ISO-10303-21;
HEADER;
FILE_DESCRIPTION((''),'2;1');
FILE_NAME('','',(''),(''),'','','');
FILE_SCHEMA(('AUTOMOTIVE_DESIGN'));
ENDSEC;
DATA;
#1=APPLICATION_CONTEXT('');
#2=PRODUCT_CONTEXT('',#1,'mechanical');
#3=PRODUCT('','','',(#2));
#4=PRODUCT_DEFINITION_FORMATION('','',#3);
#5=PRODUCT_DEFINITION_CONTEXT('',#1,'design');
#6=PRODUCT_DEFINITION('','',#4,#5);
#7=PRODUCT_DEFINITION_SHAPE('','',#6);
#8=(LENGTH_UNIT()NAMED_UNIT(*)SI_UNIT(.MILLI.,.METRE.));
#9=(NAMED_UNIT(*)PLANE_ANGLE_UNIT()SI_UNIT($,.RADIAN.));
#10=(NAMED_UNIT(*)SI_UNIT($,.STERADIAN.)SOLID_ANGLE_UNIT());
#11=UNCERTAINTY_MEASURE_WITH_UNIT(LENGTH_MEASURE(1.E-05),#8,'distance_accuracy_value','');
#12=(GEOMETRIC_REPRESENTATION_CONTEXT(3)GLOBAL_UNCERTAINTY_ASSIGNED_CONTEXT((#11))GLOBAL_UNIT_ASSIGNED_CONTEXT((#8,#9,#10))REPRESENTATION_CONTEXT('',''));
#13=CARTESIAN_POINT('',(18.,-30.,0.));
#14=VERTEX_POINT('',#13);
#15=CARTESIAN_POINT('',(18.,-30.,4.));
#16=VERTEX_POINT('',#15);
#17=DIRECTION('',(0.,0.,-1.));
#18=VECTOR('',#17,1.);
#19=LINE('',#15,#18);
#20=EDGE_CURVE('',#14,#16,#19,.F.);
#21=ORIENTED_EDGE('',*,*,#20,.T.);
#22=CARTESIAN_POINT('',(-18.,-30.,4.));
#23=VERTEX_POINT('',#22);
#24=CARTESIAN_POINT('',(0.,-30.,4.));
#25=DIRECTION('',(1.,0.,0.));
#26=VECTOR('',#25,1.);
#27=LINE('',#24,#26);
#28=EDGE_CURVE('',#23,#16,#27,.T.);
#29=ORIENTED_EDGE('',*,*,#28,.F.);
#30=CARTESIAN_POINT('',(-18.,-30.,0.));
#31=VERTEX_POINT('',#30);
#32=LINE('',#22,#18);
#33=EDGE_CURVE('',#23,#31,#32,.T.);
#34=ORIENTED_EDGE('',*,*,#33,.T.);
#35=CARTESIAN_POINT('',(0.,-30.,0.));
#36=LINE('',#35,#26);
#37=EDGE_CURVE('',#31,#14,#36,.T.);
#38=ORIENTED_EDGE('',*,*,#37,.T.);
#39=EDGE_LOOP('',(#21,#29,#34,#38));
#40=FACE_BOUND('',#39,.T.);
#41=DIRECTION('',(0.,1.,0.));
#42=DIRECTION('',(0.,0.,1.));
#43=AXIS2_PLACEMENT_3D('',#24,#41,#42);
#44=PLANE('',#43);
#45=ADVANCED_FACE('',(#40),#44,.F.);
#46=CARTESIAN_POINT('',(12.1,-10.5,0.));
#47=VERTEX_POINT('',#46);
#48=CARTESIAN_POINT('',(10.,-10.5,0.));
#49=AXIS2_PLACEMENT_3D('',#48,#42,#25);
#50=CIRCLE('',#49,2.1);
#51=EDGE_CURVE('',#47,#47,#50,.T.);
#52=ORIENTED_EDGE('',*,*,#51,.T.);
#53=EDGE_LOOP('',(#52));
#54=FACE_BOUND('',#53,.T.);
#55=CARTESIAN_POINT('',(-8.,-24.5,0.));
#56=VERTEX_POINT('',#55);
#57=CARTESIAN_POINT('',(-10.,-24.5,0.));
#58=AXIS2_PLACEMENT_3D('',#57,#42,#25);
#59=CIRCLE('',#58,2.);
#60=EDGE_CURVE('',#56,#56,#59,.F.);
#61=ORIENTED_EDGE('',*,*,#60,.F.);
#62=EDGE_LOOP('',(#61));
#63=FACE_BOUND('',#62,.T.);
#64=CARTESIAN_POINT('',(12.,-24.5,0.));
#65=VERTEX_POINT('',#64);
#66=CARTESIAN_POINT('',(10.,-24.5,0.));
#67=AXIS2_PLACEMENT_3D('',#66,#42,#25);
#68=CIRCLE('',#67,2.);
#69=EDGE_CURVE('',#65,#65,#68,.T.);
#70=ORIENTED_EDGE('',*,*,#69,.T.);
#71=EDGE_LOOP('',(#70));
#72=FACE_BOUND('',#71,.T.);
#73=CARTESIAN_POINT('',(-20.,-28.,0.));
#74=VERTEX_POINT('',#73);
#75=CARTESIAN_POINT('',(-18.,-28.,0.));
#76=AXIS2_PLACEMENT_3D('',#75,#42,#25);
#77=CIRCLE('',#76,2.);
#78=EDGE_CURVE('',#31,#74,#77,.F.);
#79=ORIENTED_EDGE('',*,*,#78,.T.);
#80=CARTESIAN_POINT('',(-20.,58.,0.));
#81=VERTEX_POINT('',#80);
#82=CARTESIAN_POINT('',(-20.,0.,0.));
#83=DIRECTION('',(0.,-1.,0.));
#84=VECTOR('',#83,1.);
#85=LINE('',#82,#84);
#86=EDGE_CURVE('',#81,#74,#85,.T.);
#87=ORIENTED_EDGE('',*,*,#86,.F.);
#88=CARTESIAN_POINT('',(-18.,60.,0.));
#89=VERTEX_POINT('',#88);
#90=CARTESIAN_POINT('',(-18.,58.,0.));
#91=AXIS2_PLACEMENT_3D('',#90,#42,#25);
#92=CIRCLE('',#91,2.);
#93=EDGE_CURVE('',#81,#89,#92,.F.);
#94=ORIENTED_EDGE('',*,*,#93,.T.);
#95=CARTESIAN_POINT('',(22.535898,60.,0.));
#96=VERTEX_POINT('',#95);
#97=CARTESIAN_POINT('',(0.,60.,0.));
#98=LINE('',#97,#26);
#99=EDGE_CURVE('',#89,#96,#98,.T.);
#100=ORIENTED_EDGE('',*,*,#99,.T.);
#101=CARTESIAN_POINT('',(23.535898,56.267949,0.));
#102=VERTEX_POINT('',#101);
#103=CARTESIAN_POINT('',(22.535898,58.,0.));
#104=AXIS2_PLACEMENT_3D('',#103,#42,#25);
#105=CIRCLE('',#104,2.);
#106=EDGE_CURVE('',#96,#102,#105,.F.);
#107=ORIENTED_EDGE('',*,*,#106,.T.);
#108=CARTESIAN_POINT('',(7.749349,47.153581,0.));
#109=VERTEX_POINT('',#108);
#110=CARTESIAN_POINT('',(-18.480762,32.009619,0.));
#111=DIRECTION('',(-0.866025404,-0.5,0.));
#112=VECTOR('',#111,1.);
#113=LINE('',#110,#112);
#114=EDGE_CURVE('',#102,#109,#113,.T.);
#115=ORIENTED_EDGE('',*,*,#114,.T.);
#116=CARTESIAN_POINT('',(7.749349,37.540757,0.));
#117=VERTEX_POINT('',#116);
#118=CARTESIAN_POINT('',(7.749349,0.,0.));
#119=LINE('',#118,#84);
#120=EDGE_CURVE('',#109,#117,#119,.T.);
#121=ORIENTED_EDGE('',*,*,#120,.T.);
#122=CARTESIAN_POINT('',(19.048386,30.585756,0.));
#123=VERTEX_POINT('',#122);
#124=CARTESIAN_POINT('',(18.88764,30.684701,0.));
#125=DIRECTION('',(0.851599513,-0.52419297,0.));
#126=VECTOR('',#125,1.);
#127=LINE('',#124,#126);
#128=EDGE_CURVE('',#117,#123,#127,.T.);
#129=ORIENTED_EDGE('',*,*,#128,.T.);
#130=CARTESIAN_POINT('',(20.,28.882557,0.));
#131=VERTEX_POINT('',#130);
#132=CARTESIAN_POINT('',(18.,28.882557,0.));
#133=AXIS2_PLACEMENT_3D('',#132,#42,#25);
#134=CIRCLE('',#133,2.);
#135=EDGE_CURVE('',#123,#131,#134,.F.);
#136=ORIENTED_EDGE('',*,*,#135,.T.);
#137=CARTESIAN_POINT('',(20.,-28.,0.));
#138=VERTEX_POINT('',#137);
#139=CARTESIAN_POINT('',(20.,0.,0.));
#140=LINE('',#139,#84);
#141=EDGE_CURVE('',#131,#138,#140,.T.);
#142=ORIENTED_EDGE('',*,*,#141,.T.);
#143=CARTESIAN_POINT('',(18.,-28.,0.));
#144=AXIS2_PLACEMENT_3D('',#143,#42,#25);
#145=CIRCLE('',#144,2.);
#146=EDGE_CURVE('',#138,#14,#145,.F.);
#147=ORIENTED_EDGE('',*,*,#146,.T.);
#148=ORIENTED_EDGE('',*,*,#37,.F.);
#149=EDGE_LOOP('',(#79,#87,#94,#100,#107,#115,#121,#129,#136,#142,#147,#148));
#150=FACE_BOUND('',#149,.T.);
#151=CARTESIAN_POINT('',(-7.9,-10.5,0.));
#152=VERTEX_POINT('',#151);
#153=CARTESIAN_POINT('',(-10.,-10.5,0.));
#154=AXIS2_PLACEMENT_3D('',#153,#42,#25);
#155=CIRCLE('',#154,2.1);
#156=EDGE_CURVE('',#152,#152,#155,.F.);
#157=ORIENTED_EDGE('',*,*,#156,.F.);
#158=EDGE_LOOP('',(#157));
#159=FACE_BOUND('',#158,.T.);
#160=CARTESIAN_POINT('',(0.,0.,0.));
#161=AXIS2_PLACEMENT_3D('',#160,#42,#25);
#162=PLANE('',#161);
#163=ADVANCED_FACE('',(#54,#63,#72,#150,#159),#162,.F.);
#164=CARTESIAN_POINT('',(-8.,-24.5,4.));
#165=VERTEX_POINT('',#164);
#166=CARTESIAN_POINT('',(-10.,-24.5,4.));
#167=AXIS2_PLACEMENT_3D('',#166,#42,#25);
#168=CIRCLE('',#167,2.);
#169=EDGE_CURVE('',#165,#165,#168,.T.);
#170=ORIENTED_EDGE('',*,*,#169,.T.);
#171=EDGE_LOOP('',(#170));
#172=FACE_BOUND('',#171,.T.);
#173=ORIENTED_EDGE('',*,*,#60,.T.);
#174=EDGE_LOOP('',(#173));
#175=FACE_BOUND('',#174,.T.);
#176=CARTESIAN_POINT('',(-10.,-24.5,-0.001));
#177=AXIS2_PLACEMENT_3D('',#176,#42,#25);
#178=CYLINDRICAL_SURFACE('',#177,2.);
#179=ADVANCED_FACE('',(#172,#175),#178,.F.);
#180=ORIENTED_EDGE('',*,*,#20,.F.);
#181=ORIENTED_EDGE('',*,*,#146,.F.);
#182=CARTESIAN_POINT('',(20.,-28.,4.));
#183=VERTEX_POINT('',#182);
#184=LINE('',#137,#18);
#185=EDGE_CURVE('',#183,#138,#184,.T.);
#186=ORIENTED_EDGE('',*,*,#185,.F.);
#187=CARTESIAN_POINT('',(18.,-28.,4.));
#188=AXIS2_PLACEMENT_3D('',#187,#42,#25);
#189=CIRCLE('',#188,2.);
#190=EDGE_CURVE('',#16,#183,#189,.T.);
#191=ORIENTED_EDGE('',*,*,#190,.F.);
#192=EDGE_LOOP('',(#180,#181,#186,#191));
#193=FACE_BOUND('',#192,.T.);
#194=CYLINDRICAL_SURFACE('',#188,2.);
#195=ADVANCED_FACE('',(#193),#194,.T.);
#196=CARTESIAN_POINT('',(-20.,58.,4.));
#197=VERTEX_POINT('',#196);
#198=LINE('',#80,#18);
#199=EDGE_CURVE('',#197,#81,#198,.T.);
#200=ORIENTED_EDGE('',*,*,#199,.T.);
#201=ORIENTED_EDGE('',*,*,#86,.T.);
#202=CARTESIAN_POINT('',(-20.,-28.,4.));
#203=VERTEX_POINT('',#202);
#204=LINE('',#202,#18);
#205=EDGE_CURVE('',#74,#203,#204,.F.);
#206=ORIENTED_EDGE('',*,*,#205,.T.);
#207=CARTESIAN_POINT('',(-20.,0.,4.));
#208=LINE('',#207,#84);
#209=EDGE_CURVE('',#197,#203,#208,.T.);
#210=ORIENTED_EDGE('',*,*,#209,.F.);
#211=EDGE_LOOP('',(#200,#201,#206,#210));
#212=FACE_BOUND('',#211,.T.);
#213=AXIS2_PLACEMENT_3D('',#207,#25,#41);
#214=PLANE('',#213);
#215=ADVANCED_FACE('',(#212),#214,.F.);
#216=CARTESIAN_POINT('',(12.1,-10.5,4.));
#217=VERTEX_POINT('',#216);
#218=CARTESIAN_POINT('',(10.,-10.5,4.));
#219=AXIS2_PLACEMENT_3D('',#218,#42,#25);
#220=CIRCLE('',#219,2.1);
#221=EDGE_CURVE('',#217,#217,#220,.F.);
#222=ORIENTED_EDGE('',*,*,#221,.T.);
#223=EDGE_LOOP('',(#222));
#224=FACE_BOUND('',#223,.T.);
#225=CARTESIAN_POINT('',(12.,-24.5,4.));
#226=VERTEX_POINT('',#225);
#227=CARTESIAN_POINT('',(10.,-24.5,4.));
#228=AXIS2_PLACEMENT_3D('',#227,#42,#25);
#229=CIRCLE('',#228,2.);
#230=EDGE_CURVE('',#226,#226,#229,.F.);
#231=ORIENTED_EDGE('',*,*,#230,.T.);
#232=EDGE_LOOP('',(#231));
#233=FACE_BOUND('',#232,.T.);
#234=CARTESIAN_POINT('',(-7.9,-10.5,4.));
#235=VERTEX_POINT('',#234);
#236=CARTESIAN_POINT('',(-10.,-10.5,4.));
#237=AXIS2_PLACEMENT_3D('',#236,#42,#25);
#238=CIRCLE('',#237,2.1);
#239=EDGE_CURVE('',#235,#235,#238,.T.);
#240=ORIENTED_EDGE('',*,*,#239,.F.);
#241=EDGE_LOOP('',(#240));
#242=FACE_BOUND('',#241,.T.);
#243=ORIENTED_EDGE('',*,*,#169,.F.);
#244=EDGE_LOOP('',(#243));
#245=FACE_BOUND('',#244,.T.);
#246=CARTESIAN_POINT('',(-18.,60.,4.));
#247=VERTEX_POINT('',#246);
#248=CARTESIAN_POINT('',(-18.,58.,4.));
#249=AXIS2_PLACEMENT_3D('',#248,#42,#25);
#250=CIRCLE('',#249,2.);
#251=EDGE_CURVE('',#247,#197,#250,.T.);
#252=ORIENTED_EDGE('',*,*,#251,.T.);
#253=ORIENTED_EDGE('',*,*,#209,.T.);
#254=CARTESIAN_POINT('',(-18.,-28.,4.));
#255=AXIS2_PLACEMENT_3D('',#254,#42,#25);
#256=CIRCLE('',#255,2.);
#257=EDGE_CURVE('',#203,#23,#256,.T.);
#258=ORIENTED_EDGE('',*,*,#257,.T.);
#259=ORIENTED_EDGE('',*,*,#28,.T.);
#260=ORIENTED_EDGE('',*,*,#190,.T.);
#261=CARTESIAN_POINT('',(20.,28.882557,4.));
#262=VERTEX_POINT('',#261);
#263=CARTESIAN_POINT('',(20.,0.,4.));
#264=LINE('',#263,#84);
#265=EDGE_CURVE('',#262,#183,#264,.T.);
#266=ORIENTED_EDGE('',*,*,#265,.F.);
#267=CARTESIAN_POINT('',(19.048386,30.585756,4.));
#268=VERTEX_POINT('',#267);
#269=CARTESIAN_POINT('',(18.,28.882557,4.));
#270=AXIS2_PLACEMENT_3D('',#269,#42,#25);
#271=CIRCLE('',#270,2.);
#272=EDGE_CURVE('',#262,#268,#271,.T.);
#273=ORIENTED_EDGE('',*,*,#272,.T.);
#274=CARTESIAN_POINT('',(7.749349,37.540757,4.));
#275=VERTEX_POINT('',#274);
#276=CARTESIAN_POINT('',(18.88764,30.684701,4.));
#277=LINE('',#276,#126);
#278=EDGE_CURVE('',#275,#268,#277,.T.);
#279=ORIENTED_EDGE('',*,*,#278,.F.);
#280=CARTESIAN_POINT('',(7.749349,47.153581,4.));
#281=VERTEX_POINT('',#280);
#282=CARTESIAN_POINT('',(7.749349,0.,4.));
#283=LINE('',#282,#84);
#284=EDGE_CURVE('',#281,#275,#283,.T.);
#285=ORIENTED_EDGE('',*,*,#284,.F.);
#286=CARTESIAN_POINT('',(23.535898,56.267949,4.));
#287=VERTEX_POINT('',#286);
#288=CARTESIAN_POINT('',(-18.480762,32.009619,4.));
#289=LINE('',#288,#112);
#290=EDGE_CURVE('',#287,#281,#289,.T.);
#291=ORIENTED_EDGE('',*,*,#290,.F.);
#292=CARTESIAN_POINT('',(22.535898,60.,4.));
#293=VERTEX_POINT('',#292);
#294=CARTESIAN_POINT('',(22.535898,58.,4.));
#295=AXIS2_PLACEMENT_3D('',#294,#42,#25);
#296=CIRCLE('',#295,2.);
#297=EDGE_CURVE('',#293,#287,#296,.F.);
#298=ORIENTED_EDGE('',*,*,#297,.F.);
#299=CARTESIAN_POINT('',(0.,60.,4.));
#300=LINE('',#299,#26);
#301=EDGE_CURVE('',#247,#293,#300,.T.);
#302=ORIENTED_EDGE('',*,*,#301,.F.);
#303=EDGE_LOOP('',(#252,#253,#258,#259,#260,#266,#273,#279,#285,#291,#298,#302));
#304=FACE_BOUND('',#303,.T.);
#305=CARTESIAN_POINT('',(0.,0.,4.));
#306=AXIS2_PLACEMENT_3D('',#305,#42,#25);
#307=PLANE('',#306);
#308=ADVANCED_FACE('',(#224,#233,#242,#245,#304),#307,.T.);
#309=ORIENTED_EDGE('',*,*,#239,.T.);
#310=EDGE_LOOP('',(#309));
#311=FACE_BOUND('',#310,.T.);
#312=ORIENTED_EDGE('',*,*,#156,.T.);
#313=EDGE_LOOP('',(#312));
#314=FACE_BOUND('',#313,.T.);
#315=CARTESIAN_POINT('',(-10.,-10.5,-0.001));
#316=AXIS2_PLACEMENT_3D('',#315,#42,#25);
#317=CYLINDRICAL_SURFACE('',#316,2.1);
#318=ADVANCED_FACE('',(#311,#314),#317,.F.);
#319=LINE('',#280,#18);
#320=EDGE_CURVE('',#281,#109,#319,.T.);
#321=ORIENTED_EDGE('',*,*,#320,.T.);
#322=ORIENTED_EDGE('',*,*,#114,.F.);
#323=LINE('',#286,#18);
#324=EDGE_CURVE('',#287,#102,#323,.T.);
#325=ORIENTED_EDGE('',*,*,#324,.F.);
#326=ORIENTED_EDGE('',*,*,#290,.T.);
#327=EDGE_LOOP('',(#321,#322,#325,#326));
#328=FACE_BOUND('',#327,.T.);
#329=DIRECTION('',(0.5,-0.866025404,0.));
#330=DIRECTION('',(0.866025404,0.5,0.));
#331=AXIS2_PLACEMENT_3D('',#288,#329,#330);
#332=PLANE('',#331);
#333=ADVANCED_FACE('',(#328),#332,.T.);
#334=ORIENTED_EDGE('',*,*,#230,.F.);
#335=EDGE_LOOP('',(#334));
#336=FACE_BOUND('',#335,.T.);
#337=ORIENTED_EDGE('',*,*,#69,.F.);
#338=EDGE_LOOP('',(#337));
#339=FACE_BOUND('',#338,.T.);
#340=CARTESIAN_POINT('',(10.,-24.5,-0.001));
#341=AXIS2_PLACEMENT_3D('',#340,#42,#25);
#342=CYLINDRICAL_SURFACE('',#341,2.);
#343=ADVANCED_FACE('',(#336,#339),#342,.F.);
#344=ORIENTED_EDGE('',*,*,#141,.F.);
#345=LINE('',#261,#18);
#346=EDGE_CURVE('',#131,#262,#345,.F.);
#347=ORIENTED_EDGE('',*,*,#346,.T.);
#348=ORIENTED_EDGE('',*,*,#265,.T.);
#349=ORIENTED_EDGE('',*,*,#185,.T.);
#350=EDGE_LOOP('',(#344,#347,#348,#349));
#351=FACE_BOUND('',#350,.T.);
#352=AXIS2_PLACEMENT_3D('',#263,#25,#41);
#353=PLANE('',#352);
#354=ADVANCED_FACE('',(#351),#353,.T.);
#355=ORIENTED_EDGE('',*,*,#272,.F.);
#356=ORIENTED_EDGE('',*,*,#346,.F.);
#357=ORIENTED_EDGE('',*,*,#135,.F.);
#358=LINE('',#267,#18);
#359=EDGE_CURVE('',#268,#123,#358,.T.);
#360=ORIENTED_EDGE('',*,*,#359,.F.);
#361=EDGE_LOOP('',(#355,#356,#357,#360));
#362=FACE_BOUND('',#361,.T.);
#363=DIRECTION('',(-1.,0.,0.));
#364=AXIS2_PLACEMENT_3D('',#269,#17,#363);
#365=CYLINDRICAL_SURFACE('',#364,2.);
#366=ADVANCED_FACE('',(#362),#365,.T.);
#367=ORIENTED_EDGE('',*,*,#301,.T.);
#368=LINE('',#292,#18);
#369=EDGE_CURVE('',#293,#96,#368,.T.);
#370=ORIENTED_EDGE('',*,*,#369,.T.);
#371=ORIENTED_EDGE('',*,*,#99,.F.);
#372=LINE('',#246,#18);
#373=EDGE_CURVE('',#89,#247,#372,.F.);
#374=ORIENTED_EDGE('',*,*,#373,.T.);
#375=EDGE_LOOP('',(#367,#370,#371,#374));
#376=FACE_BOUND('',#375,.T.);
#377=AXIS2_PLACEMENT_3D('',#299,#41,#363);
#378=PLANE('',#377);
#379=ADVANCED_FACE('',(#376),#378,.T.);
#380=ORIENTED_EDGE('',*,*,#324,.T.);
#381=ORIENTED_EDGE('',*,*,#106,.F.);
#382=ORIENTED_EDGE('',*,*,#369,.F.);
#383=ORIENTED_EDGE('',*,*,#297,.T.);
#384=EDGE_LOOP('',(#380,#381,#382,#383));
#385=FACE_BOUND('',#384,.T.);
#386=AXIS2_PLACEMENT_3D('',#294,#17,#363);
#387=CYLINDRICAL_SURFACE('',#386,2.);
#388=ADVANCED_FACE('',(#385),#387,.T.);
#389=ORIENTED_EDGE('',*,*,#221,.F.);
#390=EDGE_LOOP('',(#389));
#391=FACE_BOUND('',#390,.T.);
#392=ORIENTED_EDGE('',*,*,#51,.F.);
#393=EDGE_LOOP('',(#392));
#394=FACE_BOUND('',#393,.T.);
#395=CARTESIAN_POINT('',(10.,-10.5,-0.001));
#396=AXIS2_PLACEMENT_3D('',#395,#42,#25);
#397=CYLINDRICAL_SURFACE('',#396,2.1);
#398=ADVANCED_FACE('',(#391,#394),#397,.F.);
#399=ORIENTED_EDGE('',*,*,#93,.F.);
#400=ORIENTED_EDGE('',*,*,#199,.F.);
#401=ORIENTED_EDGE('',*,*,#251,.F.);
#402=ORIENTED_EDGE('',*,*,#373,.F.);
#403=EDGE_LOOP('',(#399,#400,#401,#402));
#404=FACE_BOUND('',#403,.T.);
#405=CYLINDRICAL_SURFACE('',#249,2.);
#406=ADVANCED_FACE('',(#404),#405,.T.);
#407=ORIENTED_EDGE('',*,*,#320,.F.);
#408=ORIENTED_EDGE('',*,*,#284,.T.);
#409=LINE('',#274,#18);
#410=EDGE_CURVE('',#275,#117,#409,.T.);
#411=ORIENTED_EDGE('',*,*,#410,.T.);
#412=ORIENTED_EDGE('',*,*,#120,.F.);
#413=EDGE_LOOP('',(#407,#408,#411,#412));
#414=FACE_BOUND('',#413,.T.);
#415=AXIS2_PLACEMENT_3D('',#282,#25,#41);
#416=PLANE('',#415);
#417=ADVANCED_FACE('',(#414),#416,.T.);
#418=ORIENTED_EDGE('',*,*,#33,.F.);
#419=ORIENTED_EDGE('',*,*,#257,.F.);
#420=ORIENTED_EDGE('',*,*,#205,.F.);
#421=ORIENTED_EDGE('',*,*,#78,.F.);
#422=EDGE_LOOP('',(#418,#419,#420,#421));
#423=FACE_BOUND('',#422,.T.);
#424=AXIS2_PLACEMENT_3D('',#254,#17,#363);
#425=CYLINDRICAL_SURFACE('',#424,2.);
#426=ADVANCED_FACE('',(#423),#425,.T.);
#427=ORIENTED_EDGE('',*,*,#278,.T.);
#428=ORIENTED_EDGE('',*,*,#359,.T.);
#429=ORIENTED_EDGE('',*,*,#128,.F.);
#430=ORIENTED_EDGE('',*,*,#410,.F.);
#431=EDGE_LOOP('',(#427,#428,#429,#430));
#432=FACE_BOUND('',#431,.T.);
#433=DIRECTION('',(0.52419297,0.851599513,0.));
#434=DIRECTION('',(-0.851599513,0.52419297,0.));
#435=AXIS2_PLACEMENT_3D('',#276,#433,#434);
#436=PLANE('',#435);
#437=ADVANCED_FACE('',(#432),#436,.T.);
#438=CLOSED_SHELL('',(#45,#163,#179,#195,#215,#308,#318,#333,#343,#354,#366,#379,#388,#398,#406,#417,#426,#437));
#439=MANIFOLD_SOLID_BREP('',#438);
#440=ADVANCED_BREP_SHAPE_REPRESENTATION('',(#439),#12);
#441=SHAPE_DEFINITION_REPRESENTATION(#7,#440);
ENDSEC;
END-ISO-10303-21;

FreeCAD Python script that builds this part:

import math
import FreeCAD as App
import Part
import Sketcher
from FreeCAD import Vector
Q = App.Units.Quantity


def edges_at(feature, points):
    """Names of the edges that pass closest to the given points."""
    edges = feature.Shape.Edges
    near = lambda p: min(range(len(edges)), key=lambda i: edges[i].distToShape(Part.Vertex(*p))[0])
    return sorted({f"Edge{near(p) + 1}" for p in points})

doc = App.newDocument("Part")
body = doc.addObject("PartDesign::Body", "Body")

sketch1 = body.newObject("Sketcher::SketchObject", "Sketch")
sketch1.AttachmentSupport = (doc.getObject("XY_Plane"), [""])
sketch1.MapMode = "FlatFace"
sketch1.addGeometry(Part.LineSegment(Vector(22.5, 60, 0), Vector(-20, 60, 0)), False)
sketch1.addGeometry(Part.LineSegment(Vector(-20, 60, 0), Vector(-20, -30, 0)), False)
sketch1.addGeometry(Part.LineSegment(Vector(-20, -30, 0), Vector(20, -30, 0)), False)
sketch1.addGeometry(Part.LineSegment(Vector(20, -30, 0), Vector(20, 30, 0)), False)
sketch1.addGeometry(Part.LineSegment(Vector(20, 30, 0), Vector(7.7, 37.5, 0)), False)
sketch1.addGeometry(Part.LineSegment(Vector(7.7, 37.5, 0), Vector(7.7, 47.2, 0)), False)
sketch1.addGeometry(Part.LineSegment(Vector(7.7, 47.2, 0), Vector(23.5, 56.3, 0)), False)
sketch1.addGeometry(Part.ArcOfCircle(Part.Circle(Vector(22.5, 58, 0), Vector(0, 0, 1), 2), math.radians(-60), math.radians(90)), False)
sketch1.addConstraint(Sketcher.Constraint("Coincident", 0, 2, 1, 1))
sketch1.addConstraint(Sketcher.Constraint("Coincident", 1, 2, 2, 1))
sketch1.addConstraint(Sketcher.Constraint("Coincident", 2, 2, 3, 1))
sketch1.addConstraint(Sketcher.Constraint("Coincident", 3, 2, 4, 1))
sketch1.addConstraint(Sketcher.Constraint("Coincident", 4, 2, 5, 1))
sketch1.addConstraint(Sketcher.Constraint("Coincident", 5, 2, 6, 1))
sketch1.addConstraint(Sketcher.Constraint("Tangent", 6, 2, 7, 1))
sketch1.addConstraint(Sketcher.Constraint("Tangent", 7, 2, 0, 1))
sketch1.addConstraint(Sketcher.Constraint("Horizontal", 0))
sketch1.addConstraint(Sketcher.Constraint("Vertical", 1))
sketch1.addConstraint(Sketcher.Constraint("Horizontal", 2))
sketch1.addConstraint(Sketcher.Constraint("Vertical", 3))
sketch1.addConstraint(Sketcher.Constraint("Vertical", 5))
sketch1.addConstraint(Sketcher.Constraint("Symmetric", 1, 2, 3, 2, -1, 1))
sketch1.addConstraint(Sketcher.Constraint("Radius", 7, Q("2 mm")))
sketch1.addConstraint(Sketcher.Constraint("DistanceX", 2, 1, 2, 2, Q("40 mm")))
sketch1.addConstraint(Sketcher.Constraint("DistanceY", 1, 2, 1, 1, Q("90 mm")))
sketch1.addConstraint(Sketcher.Constraint("DistanceY", 3, 1, 3, 2, Q("60 mm")))
sketch1.addConstraint(Sketcher.Constraint("Angle", 6, Q("30 deg")))
sketch1.addConstraint(Sketcher.Constraint("DistanceX", 0, 2, 0, 1, Q("42.535898 mm")))
sketch1.addConstraint(Sketcher.Constraint("Distance", 4, Q("14.38546 mm")))
sketch1.addConstraint(Sketcher.Constraint("DistanceY", 5, 1, 5, 2, Q("9.612823 mm")))
pad1 = body.newObject("PartDesign::Pad", "Pad")
pad1.Profile = sketch1
pad1.Length = 4

sketch2 = body.newObject("Sketcher::SketchObject", "Sketch001")
sketch2.AttachmentSupport = (doc.getObject("XY_Plane"), [""])
sketch2.MapMode = "FlatFace"
sketch2.AttachmentOffset = App.Placement(Vector(0, 0, 4), App.Rotation())
sketch2.addGeometry(Part.Circle(Vector(-10, -24.5, 0), Vector(0, 0, 1), 2), False)
sketch2.addConstraint(Sketcher.Constraint("Diameter", 0, Q("4 mm")))
sketch2.addConstraint(Sketcher.Constraint("DistanceX", 0, 3, -1, 1, Q("10 mm")))
sketch2.addConstraint(Sketcher.Constraint("DistanceY", 0, 3, -1, 1, Q("24.5 mm")))
pocket1 = body.newObject("PartDesign::Pocket", "Pocket")
pocket1.Profile = sketch2
pocket1.Type = "UpToFirst"

sketch3 = body.newObject("Sketcher::SketchObject", "Sketch002")
sketch3.AttachmentSupport = (doc.getObject("XY_Plane"), [""])
sketch3.MapMode = "FlatFace"
sketch3.AttachmentOffset = App.Placement(Vector(0, 0, 4), App.Rotation())
sketch3.addGeometry(Part.Circle(Vector(-10, -10.5, 0), Vector(0, 0, 1), 2.1), False)
sketch3.addConstraint(Sketcher.Constraint("Diameter", 0, Q("4.2 mm")))
sketch3.addConstraint(Sketcher.Constraint("DistanceX", 0, 3, -1, 1, Q("10 mm")))
sketch3.addConstraint(Sketcher.Constraint("DistanceY", 0, 3, -1, 1, Q("10.5 mm")))
pocket2 = body.newObject("PartDesign::Pocket", "Pocket001")
pocket2.Profile = sketch3
pocket2.Type = "UpToFirst"

sketch4 = body.newObject("Sketcher::SketchObject", "Sketch003")
sketch4.AttachmentSupport = (doc.getObject("XY_Plane"), [""])
sketch4.MapMode = "FlatFace"
sketch4.AttachmentOffset = App.Placement(Vector(0, 0, 4), App.Rotation())
sketch4.addGeometry(Part.Circle(Vector(10, -10.5, 0), Vector(0, 0, 1), 2.1), False)
sketch4.addConstraint(Sketcher.Constraint("Diameter", 0, Q("4.2 mm")))
sketch4.addConstraint(Sketcher.Constraint("DistanceX", -1, 1, 0, 3, Q("10 mm")))
sketch4.addConstraint(Sketcher.Constraint("DistanceY", 0, 3, -1, 1, Q("10.5 mm")))
pocket3 = body.newObject("PartDesign::Pocket", "Pocket002")
pocket3.Profile = sketch4
pocket3.Type = "UpToFirst"

sketch5 = body.newObject("Sketcher::SketchObject", "Sketch004")
sketch5.AttachmentSupport = (doc.getObject("XY_Plane"), [""])
sketch5.MapMode = "FlatFace"
sketch5.AttachmentOffset = App.Placement(Vector(0, 0, 4), App.Rotation())
sketch5.addGeometry(Part.Circle(Vector(10, -24.5, 0), Vector(0, 0, 1), 2), False)
sketch5.addConstraint(Sketcher.Constraint("Diameter", 0, Q("4 mm")))
sketch5.addConstraint(Sketcher.Constraint("DistanceX", -1, 1, 0, 3, Q("10 mm")))
sketch5.addConstraint(Sketcher.Constraint("DistanceY", 0, 3, -1, 1, Q("24.5 mm")))
pocket4 = body.newObject("PartDesign::Pocket", "Pocket003")
pocket4.Profile = sketch5
pocket4.Type = "UpToFirst"
doc.recompute()

fillet = body.newObject("PartDesign::Fillet", "Fillet")
fillet.Base = (pocket4, edges_at(pocket4, [
    (20, 30, 2),
    (20, -30, 2),
    (-20, -30, 2),
    (-20, 60, 2),
]))
fillet.Radius = 2

doc.recompute()
